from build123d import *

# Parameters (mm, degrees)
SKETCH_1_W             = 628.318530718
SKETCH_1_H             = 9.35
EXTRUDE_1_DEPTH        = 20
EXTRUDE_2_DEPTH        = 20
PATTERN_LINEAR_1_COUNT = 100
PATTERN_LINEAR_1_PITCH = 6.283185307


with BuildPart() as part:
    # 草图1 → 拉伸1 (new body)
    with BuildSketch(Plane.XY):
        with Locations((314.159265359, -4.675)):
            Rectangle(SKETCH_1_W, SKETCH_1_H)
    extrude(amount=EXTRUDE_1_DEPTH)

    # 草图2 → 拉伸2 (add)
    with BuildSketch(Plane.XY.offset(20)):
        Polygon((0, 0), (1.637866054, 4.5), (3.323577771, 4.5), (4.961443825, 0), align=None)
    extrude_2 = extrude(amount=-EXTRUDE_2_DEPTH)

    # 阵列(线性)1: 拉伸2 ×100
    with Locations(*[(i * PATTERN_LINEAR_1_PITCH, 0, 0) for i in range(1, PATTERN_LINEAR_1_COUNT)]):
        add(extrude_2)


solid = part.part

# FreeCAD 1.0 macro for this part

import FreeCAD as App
import Part
import Sketcher
from FreeCAD import Vector
Q = App.Units.Quantity

doc = App.newDocument("Part")
params = doc.addObject("Spreadsheet::Sheet", "Params")
for row, (alias, value) in enumerate([
    ("sketch1_height", "9.35 mm"),
    ("pad1_length", "20 mm"),
    ("pad2_length", "20 mm"),
    ("linearpattern_pitch", "6.283185 mm"),
], start=1):
    params.set(f"A{row}", alias)
    params.set(f"B{row}", "=" + value)
    params.setAlias(f"B{row}", alias)

body = doc.addObject("PartDesign::Body", "Body")

sketch1 = doc.addObject("Sketcher::SketchObject", "Sketch")
body.addObject(sketch1)
sketch1.AttachmentSupport = (doc.XY_Plane, [""])
sketch1.MapMode = "FlatFace"
sketch1.addGeometry(Part.LineSegment(Vector(0, 0, 0), Vector(0, -9.35, 0)), False)
sketch1.addGeometry(Part.LineSegment(Vector(0, -9.35, 0), Vector(628.318531, -9.35, 0)), False)
sketch1.addGeometry(Part.LineSegment(Vector(628.318531, -9.35, 0), Vector(628.318531, 0, 0)), False)
sketch1.addGeometry(Part.LineSegment(Vector(628.318531, 0, 0), Vector(0, 0, 0)), False)
sketch1.addConstraint(Sketcher.Constraint("Coincident", 0, 2, 1, 1))
sketch1.addConstraint(Sketcher.Constraint("Coincident", 1, 2, 2, 1))
sketch1.addConstraint(Sketcher.Constraint("Coincident", 2, 2, 3, 1))
sketch1.addConstraint(Sketcher.Constraint("Coincident", 3, 2, 0, 1))
sketch1.addConstraint(Sketcher.Constraint("Vertical", 0))
sketch1.addConstraint(Sketcher.Constraint("Horizontal", 1))
sketch1.addConstraint(Sketcher.Constraint("Vertical", 2))
sketch1.addConstraint(Sketcher.Constraint("Horizontal", 3))
sketch1.addConstraint(Sketcher.Constraint("Coincident", 3, 2, -1, 1))
sketch1.addConstraint(Sketcher.Constraint("DistanceY", 0, 2, 0, 1, Q("9.35 mm")))
sketch1.addConstraint(Sketcher.Constraint("DistanceX", 1, 1, 1, 2, Q("628.318531 mm")))
sketch1.setExpression("Constraints[9]", "Params.sketch1_height")
pad1 = doc.addObject("PartDesign::Pad", "Pad")
body.addObject(pad1)
pad1.Profile = sketch1
pad1.setExpression("Length", "Params.pad1_length")

sketch2 = doc.addObject("Sketcher::SketchObject", "Sketch001")
body.addObject(sketch2)
sketch2.AttachmentSupport = (doc.XY_Plane, [""])
sketch2.MapMode = "FlatFace"
sketch2.AttachmentOffset = App.Placement(Vector(0, 0, 20), App.Rotation())
sketch2.addGeometry(Part.LineSegment(Vector(1.637866, 4.5, 0), Vector(0, 0, 0)), False)
sketch2.addGeometry(Part.LineSegment(Vector(0, 0, 0), Vector(4.961444, 0, 0)), False)
sketch2.addGeometry(Part.LineSegment(Vector(4.961444, 0, 0), Vector(3.323578, 4.5, 0)), False)
sketch2.addGeometry(Part.LineSegment(Vector(3.323578, 4.5, 0), Vector(1.637866, 4.5, 0)), False)
sketch2.addConstraint(Sketcher.Constraint("Coincident", 0, 2, 1, 1))
sketch2.addConstraint(Sketcher.Constraint("Coincident", 1, 2, 2, 1))
sketch2.addConstraint(Sketcher.Constraint("Coincident", 2, 2, 3, 1))
sketch2.addConstraint(Sketcher.Constraint("Coincident", 3, 2, 0, 1))
sketch2.addConstraint(Sketcher.Constraint("Horizontal", 1))
sketch2.addConstraint(Sketcher.Constraint("Horizontal", 3))
sketch2.addConstraint(Sketcher.Constraint("Coincident", 0, 2, -1, 1))
sketch2.addConstraint(Sketcher.Constraint("Equal", 0, 2))
sketch2.addConstraint(Sketcher.Constraint("Angle", 0, Q("-110 deg")))
sketch2.addConstraint(Sketcher.Constraint("DistanceY", -1, 1, 2, 2, Q("4.5 mm")))
sketch2.addConstraint(Sketcher.Constraint("DistanceX", 3, 2, 3, 1, Q("1.685712 mm")))
pad2 = doc.addObject("PartDesign::Pad", "Pad001")
body.addObject(pad2)
pad2.Profile = sketch2
pad2.setExpression("Length", "Params.pad2_length")
pad2.Reversed = True
doc.recompute()

linearpattern = doc.addObject("PartDesign::LinearPattern", "LinearPattern")
body.addObject(linearpattern)
linearpattern.Originals = [pad2]
linearpattern.Direction = (doc.X_Axis, [""])
linearpattern.Mode = "offset"
linearpattern.setExpression("Offset", "Params.linearpattern_pitch")
linearpattern.Occurrences = 100
body.Tip = linearpattern

doc.recompute()
